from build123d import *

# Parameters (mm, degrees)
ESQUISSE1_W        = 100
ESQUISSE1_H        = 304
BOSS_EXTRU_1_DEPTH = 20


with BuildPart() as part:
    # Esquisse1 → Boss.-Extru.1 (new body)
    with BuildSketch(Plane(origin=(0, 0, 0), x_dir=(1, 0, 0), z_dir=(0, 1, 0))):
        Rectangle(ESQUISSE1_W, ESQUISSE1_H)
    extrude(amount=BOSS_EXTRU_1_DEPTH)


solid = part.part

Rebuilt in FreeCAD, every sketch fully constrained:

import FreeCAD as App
import Part
import Sketcher
from FreeCAD import Vector
Q = App.Units.Quantity

doc = App.newDocument("Part")
params = doc.addObject("Spreadsheet::Sheet", "Params")
for row, (alias, value) in enumerate([
    ("sketch1_width", "100 mm"),
    ("sketch1_height", "304 mm"),
    ("pad1_length", "20 mm"),
], start=1):
    params.set(f"A{row}", alias)
    params.set(f"B{row}", "=" + value)
    params.setAlias(f"B{row}", alias)

body = doc.addObject("PartDesign::Body", "Body")

sketch1 = doc.addObject("Sketcher::SketchObject", "Sketch")
body.addObject(sketch1)
sketch1.AttachmentSupport = (doc.XZ_Plane, [""])
sketch1.MapMode = "FlatFace"
sketch1.addGeometry(Part.LineSegment(Vector(-50, -152, 0), Vector(-50, 152, 0)), False)
sketch1.addGeometry(Part.LineSegment(Vector(-50, 152, 0), Vector(50, 152, 0)), False)
sketch1.addGeometry(Part.LineSegment(Vector(50, 152, 0), Vector(50, -152, 0)), False)
sketch1.addGeometry(Part.LineSegment(Vector(50, -152, 0), Vector(-50, -152, 0)), False)
sketch1.addConstraint(Sketcher.Constraint("Coincident", 0, 2, 1, 1))
sketch1.addConstraint(Sketcher.Constraint("Coincident", 1, 2, 2, 1))
sketch1.addConstraint(Sketcher.Constraint("Coincident", 2, 2, 3, 1))
sketch1.addConstraint(Sketcher.Constraint("Coincident", 3, 2, 0, 1))
sketch1.addConstraint(Sketcher.Constraint("Vertical", 0))
sketch1.addConstraint(Sketcher.Constraint("Horizontal", 1))
sketch1.addConstraint(Sketcher.Constraint("Vertical", 2))
sketch1.addConstraint(Sketcher.Constraint("Horizontal", 3))
sketch1.addConstraint(Sketcher.Constraint("Symmetric", 0, 2, 2, 2, -1, 1))
sketch1.addConstraint(Sketcher.Constraint("DistanceX", 1, 1, 1, 2, Q("100 mm")))
sketch1.addConstraint(Sketcher.Constraint("DistanceY", 0, 1, 0, 2, Q("304 mm")))
sketch1.setExpression("Constraints[9]", "Params.sketch1_width")
sketch1.setExpression("Constraints[10]", "Params.sketch1_height")
pad1 = doc.addObject("PartDesign::Pad", "Pad")
body.addObject(pad1)
pad1.Profile = sketch1
pad1.setExpression("Length", "Params.pad1_length")
pad1.Reversed = True

doc.recompute()
